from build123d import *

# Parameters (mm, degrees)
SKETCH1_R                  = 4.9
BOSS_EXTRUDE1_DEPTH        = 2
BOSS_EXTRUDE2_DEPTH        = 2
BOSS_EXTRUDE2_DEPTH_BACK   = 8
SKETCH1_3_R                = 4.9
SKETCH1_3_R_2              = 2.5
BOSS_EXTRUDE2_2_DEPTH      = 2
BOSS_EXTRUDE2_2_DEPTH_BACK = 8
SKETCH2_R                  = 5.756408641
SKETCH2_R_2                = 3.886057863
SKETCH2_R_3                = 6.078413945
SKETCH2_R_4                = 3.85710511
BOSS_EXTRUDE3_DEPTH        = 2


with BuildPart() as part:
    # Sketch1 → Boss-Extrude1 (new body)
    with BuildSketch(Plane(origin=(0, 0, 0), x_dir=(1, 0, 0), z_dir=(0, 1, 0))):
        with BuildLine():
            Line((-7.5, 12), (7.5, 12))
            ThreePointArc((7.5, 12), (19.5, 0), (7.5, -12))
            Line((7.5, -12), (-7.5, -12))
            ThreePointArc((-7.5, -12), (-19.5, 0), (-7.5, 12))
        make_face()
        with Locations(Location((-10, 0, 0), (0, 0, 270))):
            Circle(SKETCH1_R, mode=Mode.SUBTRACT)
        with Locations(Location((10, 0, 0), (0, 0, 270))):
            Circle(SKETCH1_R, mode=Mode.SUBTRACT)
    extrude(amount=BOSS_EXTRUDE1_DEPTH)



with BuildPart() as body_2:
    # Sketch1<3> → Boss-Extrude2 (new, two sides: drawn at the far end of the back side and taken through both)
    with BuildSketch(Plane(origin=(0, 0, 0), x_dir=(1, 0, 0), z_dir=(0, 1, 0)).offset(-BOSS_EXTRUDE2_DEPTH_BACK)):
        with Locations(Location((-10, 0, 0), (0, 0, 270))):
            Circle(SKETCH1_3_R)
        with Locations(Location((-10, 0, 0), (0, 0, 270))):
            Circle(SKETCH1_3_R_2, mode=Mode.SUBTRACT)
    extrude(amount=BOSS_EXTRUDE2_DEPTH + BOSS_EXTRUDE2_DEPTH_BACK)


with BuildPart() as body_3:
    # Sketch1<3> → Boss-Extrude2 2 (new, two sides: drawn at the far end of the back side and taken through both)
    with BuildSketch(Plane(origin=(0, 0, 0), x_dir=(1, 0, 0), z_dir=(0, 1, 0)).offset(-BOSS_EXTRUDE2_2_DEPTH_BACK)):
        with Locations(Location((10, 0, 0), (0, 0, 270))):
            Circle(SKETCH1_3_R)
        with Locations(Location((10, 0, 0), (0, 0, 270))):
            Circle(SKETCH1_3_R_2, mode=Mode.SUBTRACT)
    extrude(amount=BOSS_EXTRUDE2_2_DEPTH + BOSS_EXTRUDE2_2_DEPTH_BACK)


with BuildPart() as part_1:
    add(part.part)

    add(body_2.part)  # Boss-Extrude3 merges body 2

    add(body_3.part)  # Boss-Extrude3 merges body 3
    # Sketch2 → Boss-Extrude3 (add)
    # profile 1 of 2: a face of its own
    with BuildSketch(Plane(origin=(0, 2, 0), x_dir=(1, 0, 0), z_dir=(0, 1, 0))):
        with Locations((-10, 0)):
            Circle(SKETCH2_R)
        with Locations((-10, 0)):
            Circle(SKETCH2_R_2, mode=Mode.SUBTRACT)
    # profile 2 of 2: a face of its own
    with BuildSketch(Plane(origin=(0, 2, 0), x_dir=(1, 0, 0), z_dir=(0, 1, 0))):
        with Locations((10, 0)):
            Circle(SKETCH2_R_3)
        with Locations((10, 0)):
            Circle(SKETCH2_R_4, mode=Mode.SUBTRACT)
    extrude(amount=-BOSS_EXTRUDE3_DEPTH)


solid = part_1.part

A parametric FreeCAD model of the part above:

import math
import FreeCAD as App
import Part
import Sketcher
from FreeCAD import Vector

doc = App.newDocument("Part")
params = doc.addObject("Spreadsheet::Sheet", "Params")
for row, (alias, value) in enumerate([
    ("sketch1_radius", "12 mm"),
    ("sketch1_diameter", "9.8 mm"),
    ("sketch1_width", "15 mm"),
    ("pad1_length", "2 mm"),
    ("sketch2_diameter", "5 mm"),
    ("sketch2_diameter2", "9.8 mm"),
    ("pad2_length", "2 mm"),
    ("pad2_length2", "8 mm"),
    ("sketch3_diameter", "5 mm"),
    ("sketch3_diameter2", "9.8 mm"),
    ("pad3_length", "2 mm"),
    ("pad3_length2", "8 mm"),
    ("pad4_length", "2 mm"),
], start=1):
    params.set(f"A{row}", alias)
    params.set(f"B{row}", "=" + value)
    params.setAlias(f"B{row}", alias)

body = doc.addObject("PartDesign::Body", "Body")

# Sketch on XZ plane
sketch1 = doc.addObject("Sketcher::SketchObject", "Sketch")
body.addObject(sketch1)
sketch1.AttachmentSupport = (doc.XZ_Plane, [""])
sketch1.MapMode = "FlatFace"
sketch1.addGeometry([
    Part.LineSegment(Vector(7.5, -12, 0), Vector(-7.5, -12, 0)),  # 0
    Part.ArcOfCircle(Part.Circle(Vector(-7.5, 0, 0), Vector(0, 0, 1), 12), math.radians(90), math.radians(270)),  # 1
    Part.LineSegment(Vector(-7.5, 12, 0), Vector(7.5, 12, 0)),  # 2
    Part.ArcOfCircle(Part.Circle(Vector(7.5, 0, 0), Vector(0, 0, 1), 12), math.radians(-90), math.radians(90)),  # 3
    Part.Circle(Vector(10, 0, 0), Vector(0, 0, 1), 4.9),  # 4
    Part.Circle(Vector(-10, 0, 0), Vector(0, 0, 1), 4.9),  # 5
], False)
sketch1.addConstraint([
    Sketcher.Constraint("Tangent", 0, 2, 1, 2),
    Sketcher.Constraint("Tangent", 1, 1, 2, 1),
    Sketcher.Constraint("Tangent", 2, 2, 3, 2),
    Sketcher.Constraint("Tangent", 3, 1, 0, 1),
    Sketcher.Constraint("Horizontal", 0),
    Sketcher.Constraint("Horizontal", 2),
    Sketcher.Constraint("Equal", 4, 5),
    Sketcher.Constraint("Symmetric", 1, 3, 3, 3, -1, 1),
    Sketcher.Constraint("Symmetric", 4, 3, 5, 3, -1, 1),
    Sketcher.Constraint("PointOnObject", 4, 3, -1),
    Sketcher.Constraint("Radius", 1, 12.0),
    Sketcher.Constraint("Diameter", 4, 9.8),
    Sketcher.Constraint("DistanceX", 0, 2, 0, 1, 15.0),
    Sketcher.Constraint("DistanceX", -1, 1, 4, 3, 10.0),
])
sketch1.setExpression("Constraints[10]", "Params.sketch1_radius")
sketch1.setExpression("Constraints[11]", "Params.sketch1_diameter")
sketch1.setExpression("Constraints[12]", "Params.sketch1_width")
pad1 = doc.addObject("PartDesign::Pad", "Pad")
body.addObject(pad1)
pad1.Profile = sketch1
pad1.setExpression("Length", "Params.pad1_length")
pad1.Reversed = True
body2 = doc.addObject("PartDesign::Body", "Body001")

# Sketch on XZ plane
sketch2 = doc.addObject("Sketcher::SketchObject", "Sketch001")
body2.addObject(sketch2)
sketch2.AttachmentSupport = (doc.getObject("XZ_Plane001"), [""])
sketch2.MapMode = "FlatFace"
sketch2.addGeometry([
    Part.Circle(Vector(-10, 0, 0), Vector(0, 0, 1), 4.9),
    Part.Circle(Vector(-10, 0, 0), Vector(0, 0, 1), 2.5),
], False)
sketch2.addConstraint([
    Sketcher.Constraint("Coincident", 1, 3, 0, 3),
    Sketcher.Constraint("PointOnObject", 0, 3, -1),
    Sketcher.Constraint("Diameter", 1, 5.0),
    Sketcher.Constraint("Diameter", 0, 9.8),
    Sketcher.Constraint("DistanceX", 0, 3, -1, 1, 10.0),
])
sketch2.setExpression("Constraints[2]", "Params.sketch2_diameter")
sketch2.setExpression("Constraints[3]", "Params.sketch2_diameter2")
pad2 = doc.addObject("PartDesign::Pad", "Pad001")
body2.addObject(pad2)
pad2.Profile = sketch2
pad2.Type = "TwoLengths"
pad2.setExpression("Length", "Params.pad2_length")
pad2.setExpression("Length2", "Params.pad2_length2")
pad2.Reversed = True
body3 = doc.addObject("PartDesign::Body", "Body002")

# Sketch on XZ plane
sketch3 = doc.addObject("Sketcher::SketchObject", "Sketch002")
body3.addObject(sketch3)
sketch3.AttachmentSupport = (doc.getObject("XZ_Plane002"), [""])
sketch3.MapMode = "FlatFace"
sketch3.addGeometry([
    Part.Circle(Vector(10, 0, 0), Vector(0, 0, 1), 4.9),
    Part.Circle(Vector(10, 0, 0), Vector(0, 0, 1), 2.5),
], False)
sketch3.addConstraint([
    Sketcher.Constraint("Coincident", 1, 3, 0, 3),
    Sketcher.Constraint("PointOnObject", 0, 3, -1),
    Sketcher.Constraint("Diameter", 1, 5.0),
    Sketcher.Constraint("Diameter", 0, 9.8),
    Sketcher.Constraint("DistanceX", -1, 1, 0, 3, 10.0),
])
sketch3.setExpression("Constraints[2]", "Params.sketch3_diameter")
sketch3.setExpression("Constraints[3]", "Params.sketch3_diameter2")
pad3 = doc.addObject("PartDesign::Pad", "Pad002")
body3.addObject(pad3)
pad3.Profile = sketch3
pad3.Type = "TwoLengths"
pad3.setExpression("Length", "Params.pad3_length")
pad3.setExpression("Length2", "Params.pad3_length2")
pad3.Reversed = True
doc.recompute()

boolean = doc.addObject("PartDesign::Boolean", "Boolean")
body.addObject(boolean)
boolean.Type = "Fuse"
boolean.addObjects([body2])
doc.recompute()

boolean2 = doc.addObject("PartDesign::Boolean", "Boolean001")
body.addObject(boolean2)
boolean2.Type = "Fuse"
boolean2.addObjects([body3])

# Sketch on XZ plane
sketch4 = doc.addObject("Sketcher::SketchObject", "Sketch003")
body.addObject(sketch4)
sketch4.AttachmentSupport = (doc.XZ_Plane, [""])
sketch4.MapMode = "FlatFace"
sketch4.AttachmentOffset = App.Placement(Vector(0, 0, -2), App.Rotation())
sketch4.addGeometry([
    Part.Circle(Vector(-10, 0, 0), Vector(0, 0, 1), 5.756409),
    Part.Circle(Vector(-10, 0, 0), Vector(0, 0, 1), 3.886058),
    Part.Circle(Vector(10, 0, 0), Vector(0, 0, 1), 6.078414),
    Part.Circle(Vector(10, 0, 0), Vector(0, 0, 1), 3.857105),
], False)
sketch4.addConstraint([
    Sketcher.Constraint("Coincident", 1, 3, 0, 3),
    Sketcher.Constraint("Coincident", 3, 3, 2, 3),
    Sketcher.Constraint("Symmetric", 0, 3, 2, 3, -1, 1),
    Sketcher.Constraint("PointOnObject", 0, 3, -1),
    Sketcher.Constraint("DistanceX", 0, 3, -1, 1, 10.0),
    Sketcher.Constraint("Diameter", 3, 7.71421),
    Sketcher.Constraint("Diameter", 0, 11.512817),
    Sketcher.Constraint("Diameter", 1, 7.772116),
    Sketcher.Constraint("Diameter", 2, 12.156828),
])
pad4 = doc.addObject("PartDesign::Pad", "Pad003")
body.addObject(pad4)
pad4.Profile = sketch4
pad4.setExpression("Length", "Params.pad4_length")

doc.recompute()
